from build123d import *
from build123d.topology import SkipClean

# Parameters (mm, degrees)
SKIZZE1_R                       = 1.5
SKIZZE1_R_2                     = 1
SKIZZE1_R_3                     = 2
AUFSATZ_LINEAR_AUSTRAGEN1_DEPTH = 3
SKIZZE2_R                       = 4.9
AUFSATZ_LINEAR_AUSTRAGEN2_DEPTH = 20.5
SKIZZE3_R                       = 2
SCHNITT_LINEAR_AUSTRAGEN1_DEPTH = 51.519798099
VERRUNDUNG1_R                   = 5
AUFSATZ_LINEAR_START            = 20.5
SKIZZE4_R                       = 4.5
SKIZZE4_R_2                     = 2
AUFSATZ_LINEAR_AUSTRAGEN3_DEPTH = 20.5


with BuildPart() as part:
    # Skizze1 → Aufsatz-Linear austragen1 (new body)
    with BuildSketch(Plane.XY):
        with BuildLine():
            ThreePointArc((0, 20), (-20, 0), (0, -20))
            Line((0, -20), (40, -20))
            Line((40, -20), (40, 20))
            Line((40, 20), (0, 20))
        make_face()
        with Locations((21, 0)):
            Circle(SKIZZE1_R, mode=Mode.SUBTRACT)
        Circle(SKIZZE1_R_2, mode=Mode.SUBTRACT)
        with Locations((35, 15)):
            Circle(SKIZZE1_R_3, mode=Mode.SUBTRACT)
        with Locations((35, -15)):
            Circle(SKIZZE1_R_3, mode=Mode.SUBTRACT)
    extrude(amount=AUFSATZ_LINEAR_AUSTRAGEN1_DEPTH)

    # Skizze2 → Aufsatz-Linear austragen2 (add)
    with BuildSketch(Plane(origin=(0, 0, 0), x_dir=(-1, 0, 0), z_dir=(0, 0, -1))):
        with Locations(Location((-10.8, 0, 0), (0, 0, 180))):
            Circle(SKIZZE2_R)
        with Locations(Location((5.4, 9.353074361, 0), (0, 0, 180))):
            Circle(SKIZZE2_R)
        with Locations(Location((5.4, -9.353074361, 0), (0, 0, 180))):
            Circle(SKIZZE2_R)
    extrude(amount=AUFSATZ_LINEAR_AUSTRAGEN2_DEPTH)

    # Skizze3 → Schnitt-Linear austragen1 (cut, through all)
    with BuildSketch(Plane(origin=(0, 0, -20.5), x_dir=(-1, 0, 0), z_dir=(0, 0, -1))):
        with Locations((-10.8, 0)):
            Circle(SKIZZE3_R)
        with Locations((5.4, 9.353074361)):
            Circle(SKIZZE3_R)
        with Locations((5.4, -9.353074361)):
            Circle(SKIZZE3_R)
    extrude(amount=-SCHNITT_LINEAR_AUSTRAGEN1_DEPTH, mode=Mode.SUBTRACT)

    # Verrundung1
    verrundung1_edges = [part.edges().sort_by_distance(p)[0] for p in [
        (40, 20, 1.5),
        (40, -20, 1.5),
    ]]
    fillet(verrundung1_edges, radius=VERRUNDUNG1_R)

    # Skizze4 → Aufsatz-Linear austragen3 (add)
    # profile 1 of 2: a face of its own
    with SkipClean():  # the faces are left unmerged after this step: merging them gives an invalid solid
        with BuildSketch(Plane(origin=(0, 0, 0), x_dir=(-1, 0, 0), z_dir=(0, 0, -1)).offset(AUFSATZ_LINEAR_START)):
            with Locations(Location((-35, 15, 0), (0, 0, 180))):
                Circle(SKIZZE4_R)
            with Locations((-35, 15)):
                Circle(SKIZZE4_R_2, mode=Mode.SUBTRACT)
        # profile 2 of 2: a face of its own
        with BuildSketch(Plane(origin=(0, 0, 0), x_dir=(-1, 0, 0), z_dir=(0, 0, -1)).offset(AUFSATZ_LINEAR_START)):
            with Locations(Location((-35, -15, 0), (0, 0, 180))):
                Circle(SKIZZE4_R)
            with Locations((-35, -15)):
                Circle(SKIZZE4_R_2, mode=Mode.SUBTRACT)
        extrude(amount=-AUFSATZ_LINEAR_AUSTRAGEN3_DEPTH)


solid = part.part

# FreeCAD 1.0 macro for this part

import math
import FreeCAD as App
import Part
import Sketcher

V = App.Vector
Q = App.Units.Quantity


def edges_at(feature, points):
    """Names of the edges that pass closest to the given points."""
    edges = feature.Shape.Edges
    near = lambda p: min(range(len(edges)), key=lambda i: edges[i].distToShape(Part.Vertex(*p))[0])
    return sorted({f"Edge{near(p) + 1}" for p in points})

doc = App.newDocument("Part")
params = doc.addObject("Spreadsheet::Sheet", "Params")
for row, (alias, value) in enumerate([
    ("sketch1_diameter", "4 mm"),
    ("sketch1_diameter2", "2 mm"),
    ("sketch1_diameter3", "3 mm"),
    ("sketch1_radius", "20 mm"),
    ("pad1_length", "3 mm"),
    ("sketch2_diameter", "9.8 mm"),
    ("pad2_length", "20.5 mm"),
    ("sketch3_diameter", "4 mm"),
    ("fillet_radius", "5 mm"),
    ("sketch4_diameter", "9 mm"),
    ("sketch4_diameter2", "4 mm"),
    ("pad3_length", "20.5 mm"),
], start=1):
    params.set(f"A{row}", alias)
    params.set(f"B{row}", "=" + value)
    params.setAlias(f"B{row}", alias)

body = doc.addObject("PartDesign::Body", "Body")

sketch1 = doc.addObject("Sketcher::SketchObject", "Sketch")
body.addObject(sketch1)
sketch1.AttachmentSupport = (doc.XY_Plane, [""])
sketch1.MapMode = "FlatFace"
sketch1.addGeometry(Part.ArcOfCircle(Part.Circle(V(0, 0, 0), V(0, 0, 1), 20), math.radians(90), math.radians(270)), False)
sketch1.addGeometry(Part.LineSegment(V(0, -20, 0), V(40, -20, 0)), False)
sketch1.addGeometry(Part.LineSegment(V(40, -20, 0), V(40, 20, 0)), False)
sketch1.addGeometry(Part.LineSegment(V(40, 20, 0), V(0, 20, 0)), False)
sketch1.addGeometry(Part.Circle(V(35, -15, 0), V(0, 0, 1), 2), False)
sketch1.addGeometry(Part.Circle(V(0, 0, 0), V(0, 0, 1), 1), False)
sketch1.addGeometry(Part.Circle(V(21, 0, 0), V(0, 0, 1), 1.5), False)
sketch1.addGeometry(Part.Circle(V(35, 15, 0), V(0, 0, 1), 2), False)
sketch1.addConstraint(Sketcher.Constraint("Tangent", 0, 2, 1, 1))
sketch1.addConstraint(Sketcher.Constraint("Coincident", 1, 2, 2, 1))
sketch1.addConstraint(Sketcher.Constraint("Coincident", 2, 2, 3, 1))
sketch1.addConstraint(Sketcher.Constraint("Tangent", 3, 2, 0, 1))
sketch1.addConstraint(Sketcher.Constraint("Horizontal", 1))
sketch1.addConstraint(Sketcher.Constraint("Vertical", 2))
sketch1.addConstraint(Sketcher.Constraint("Horizontal", 3))
sketch1.addConstraint(Sketcher.Constraint("Coincident", 0, 3, -1, 1))
sketch1.addConstraint(Sketcher.Constraint("Coincident", 5, 3, -1, 1))
sketch1.addConstraint(Sketcher.Constraint("Equal", 4, 7))
sketch1.addConstraint(Sketcher.Constraint("Symmetric", 4, 3, 7, 3, -1))
sketch1.addConstraint(Sketcher.Constraint("PointOnObject", 6, 3, -1))
sketch1.addConstraint(Sketcher.Constraint("Equal", 3, 2))
sketch1.addConstraint(Sketcher.Constraint("Diameter", 4, Q("4 mm")))
sketch1.addConstraint(Sketcher.Constraint("Diameter", 5, Q("2 mm")))
sketch1.addConstraint(Sketcher.Constraint("Diameter", 6, Q("3 mm")))
sketch1.addConstraint(Sketcher.Constraint("Radius", 0, Q("20 mm")))
sketch1.addConstraint(Sketcher.Constraint("DistanceX", -1, 1, 4, 3, Q("35 mm")))
sketch1.addConstraint(Sketcher.Constraint("DistanceY", 4, 3, -1, 1, Q("15 mm")))
sketch1.addConstraint(Sketcher.Constraint("DistanceX", -1, 1, 6, 3, Q("21 mm")))
sketch1.setExpression("Constraints[13]", "Params.sketch1_diameter")
sketch1.setExpression("Constraints[14]", "Params.sketch1_diameter2")
sketch1.setExpression("Constraints[15]", "Params.sketch1_diameter3")
sketch1.setExpression("Constraints[16]", "Params.sketch1_radius")
pad1 = doc.addObject("PartDesign::Pad", "Pad")
body.addObject(pad1)
pad1.Profile = sketch1
pad1.setExpression("Length", "Params.pad1_length")

sketch2 = doc.addObject("Sketcher::SketchObject", "Sketch001")
body.addObject(sketch2)
sketch2.AttachmentSupport = (doc.XY_Plane, [""])
sketch2.MapMode = "FlatFace"
sketch2.addGeometry(Part.Circle(V(10.8, 0, 0), V(0, 0, 1), 4.9), False)
sketch2.addGeometry(Part.Circle(V(-5.4, 9.4, 0), V(0, 0, 1), 4.9), False)
sketch2.addGeometry(Part.Circle(V(-5.4, -9.4, 0), V(0, 0, 1), 4.9), False)
sketch2.addConstraint(Sketcher.Constraint("Equal", 0, 1))
sketch2.addConstraint(Sketcher.Constraint("Equal", 1, 2))
sketch2.addConstraint(Sketcher.Constraint("Symmetric", 1, 3, 2, 3, -1))
sketch2.addConstraint(Sketcher.Constraint("PointOnObject", 0, 3, -1))
sketch2.addConstraint(Sketcher.Constraint("Diameter", 0, Q("9.8 mm")))
sketch2.addConstraint(Sketcher.Constraint("DistanceX", -1, 1, 0, 3, Q("10.8 mm")))
sketch2.addConstraint(Sketcher.Constraint("DistanceX", 1, 3, -1, 1, Q("5.4 mm")))
sketch2.addConstraint(Sketcher.Constraint("DistanceY", 2, 3, 1, 3, Q("18.706149 mm")))
sketch2.setExpression("Constraints[4]", "Params.sketch2_diameter")
pad2 = doc.addObject("PartDesign::Pad", "Pad001")
body.addObject(pad2)
pad2.Profile = sketch2
pad2.setExpression("Length", "Params.pad2_length")
pad2.Reversed = True

sketch3 = doc.addObject("Sketcher::SketchObject", "Sketch002")
body.addObject(sketch3)
sketch3.AttachmentSupport = (doc.XY_Plane, [""])
sketch3.MapMode = "FlatFace"
sketch3.AttachmentOffset = App.Placement(V(0, 0, -20.5), App.Rotation())
sketch3.addGeometry(Part.Circle(V(10.8, 0, 0), V(0, 0, 1), 2), False)
sketch3.addGeometry(Part.Circle(V(-5.4, 9.4, 0), V(0, 0, 1), 2), False)
sketch3.addGeometry(Part.Circle(V(-5.4, -9.4, 0), V(0, 0, 1), 2), False)
sketch3.addConstraint(Sketcher.Constraint("Equal", 0, 1))
sketch3.addConstraint(Sketcher.Constraint("Equal", 1, 2))
sketch3.addConstraint(Sketcher.Constraint("Symmetric", 1, 3, 2, 3, -1))
sketch3.addConstraint(Sketcher.Constraint("PointOnObject", 0, 3, -1))
sketch3.addConstraint(Sketcher.Constraint("Diameter", 0, Q("4 mm")))
sketch3.addConstraint(Sketcher.Constraint("DistanceX", -1, 1, 0, 3, Q("10.8 mm")))
sketch3.addConstraint(Sketcher.Constraint("DistanceX", 1, 3, -1, 1, Q("5.4 mm")))
sketch3.addConstraint(Sketcher.Constraint("DistanceY", 2, 3, 1, 3, Q("18.706149 mm")))
sketch3.setExpression("Constraints[4]", "Params.sketch3_diameter")
pocket1 = doc.addObject("PartDesign::Pocket", "Pocket")
body.addObject(pocket1)
pocket1.Profile = sketch3
pocket1.Type = "ThroughAll"
pocket1.Reversed = True
doc.recompute()

fillet = doc.addObject("PartDesign::Fillet", "Fillet")
body.addObject(fillet)
fillet.Base = (pocket1, edges_at(pocket1, [(40, 20, 1.5), (40, -20, 1.5)]))
fillet.setExpression("Radius", "Params.fillet_radius")

sketch4 = doc.addObject("Sketcher::SketchObject", "Sketch003")
body.addObject(sketch4)
sketch4.AttachmentSupport = (doc.XY_Plane, [""])
sketch4.MapMode = "FlatFace"
sketch4.AttachmentOffset = App.Placement(V(0, 0, -20.5), App.Rotation())
sketch4.addGeometry(Part.Circle(V(35, 15, 0), V(0, 0, 1), 4.5), False)
sketch4.addGeometry(Part.Circle(V(35, 15, 0), V(0, 0, 1), 2), False)
sketch4.addGeometry(Part.Circle(V(35, -15, 0), V(0, 0, 1), 4.5), False)
sketch4.addGeometry(Part.Circle(V(35, -15, 0), V(0, 0, 1), 2), False)
sketch4.addConstraint(Sketcher.Constraint("Coincident", 1, 3, 0, 3))
sketch4.addConstraint(Sketcher.Constraint("Coincident", 3, 3, 2, 3))
sketch4.addConstraint(Sketcher.Constraint("Equal", 0, 2))
sketch4.addConstraint(Sketcher.Constraint("Equal", 1, 3))
sketch4.addConstraint(Sketcher.Constraint("Symmetric", 0, 3, 2, 3, -1))
sketch4.addConstraint(Sketcher.Constraint("Diameter", 0, Q("9 mm")))
sketch4.addConstraint(Sketcher.Constraint("Diameter", 1, Q("4 mm")))
sketch4.addConstraint(Sketcher.Constraint("DistanceX", -1, 1, 0, 3, Q("35 mm")))
sketch4.addConstraint(Sketcher.Constraint("DistanceY", -1, 1, 0, 3, Q("15 mm")))
sketch4.setExpression("Constraints[5]", "Params.sketch4_diameter")
sketch4.setExpression("Constraints[6]", "Params.sketch4_diameter2")
pad3 = doc.addObject("PartDesign::Pad", "Pad002")
body.addObject(pad3)
pad3.Profile = sketch4
pad3.setExpression("Length", "Params.pad3_length")

doc.recompute()
